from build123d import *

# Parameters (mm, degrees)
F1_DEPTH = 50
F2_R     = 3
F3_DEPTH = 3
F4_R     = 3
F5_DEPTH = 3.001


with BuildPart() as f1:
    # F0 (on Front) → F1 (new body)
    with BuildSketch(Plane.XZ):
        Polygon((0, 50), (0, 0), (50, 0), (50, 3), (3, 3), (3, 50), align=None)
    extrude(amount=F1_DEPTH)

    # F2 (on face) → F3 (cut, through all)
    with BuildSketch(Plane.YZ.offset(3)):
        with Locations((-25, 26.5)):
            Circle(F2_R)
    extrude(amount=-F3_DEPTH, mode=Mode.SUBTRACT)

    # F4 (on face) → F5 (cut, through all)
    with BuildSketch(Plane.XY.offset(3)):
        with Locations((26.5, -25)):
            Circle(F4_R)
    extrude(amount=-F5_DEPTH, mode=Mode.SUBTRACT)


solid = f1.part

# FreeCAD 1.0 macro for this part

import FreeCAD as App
import Part
import Sketcher
from FreeCAD import Vector
Q = App.Units.Quantity

doc = App.newDocument("Part")
body = doc.addObject("PartDesign::Body", "Body")

sketch1 = doc.addObject("Sketcher::SketchObject", "Sketch")
body.addObject(sketch1)
sketch1.AttachmentSupport = (doc.XZ_Plane, [""])
sketch1.MapMode = "FlatFace"
sketch1.addGeometry([
    Part.LineSegment(Vector(0, 50, 0), Vector(0, 0, 0)),
    Part.LineSegment(Vector(0, 0, 0), Vector(50, 0, 0)),
    Part.LineSegment(Vector(50, 0, 0), Vector(50, 3, 0)),
    Part.LineSegment(Vector(50, 3, 0), Vector(3, 3, 0)),
    Part.LineSegment(Vector(3, 3, 0), Vector(3, 50, 0)),
    Part.LineSegment(Vector(3, 50, 0), Vector(0, 50, 0)),
], False)
sketch1.addConstraint([
    Sketcher.Constraint("Coincident", 0, 2, 1, 1),
    Sketcher.Constraint("Coincident", 1, 2, 2, 1),
    Sketcher.Constraint("Coincident", 2, 2, 3, 1),
    Sketcher.Constraint("Coincident", 3, 2, 4, 1),
    Sketcher.Constraint("Coincident", 4, 2, 5, 1),
    Sketcher.Constraint("Coincident", 5, 2, 0, 1),
    Sketcher.Constraint("Vertical", 0),
    Sketcher.Constraint("Horizontal", 1),
    Sketcher.Constraint("Vertical", 2),
    Sketcher.Constraint("Horizontal", 3),
    Sketcher.Constraint("Vertical", 4),
    Sketcher.Constraint("Horizontal", 5),
    Sketcher.Constraint("Coincident", 0, 2, -1, 1),
    Sketcher.Constraint("Equal", 1, 0),
    Sketcher.Constraint("Equal", 5, 2),
    Sketcher.Constraint("DistanceX", 1, 1, 1, 2, Q("50 mm")),
    Sketcher.Constraint("DistanceX", 3, 2, 3, 1, Q("47 mm")),
])
pad1 = doc.addObject("PartDesign::Pad", "Pad")
body.addObject(pad1)
pad1.Profile = sketch1
pad1.Length = 50

sketch2 = doc.addObject("Sketcher::SketchObject", "Sketch001")
body.addObject(sketch2)
sketch2.AttachmentSupport = (doc.YZ_Plane, [""])
sketch2.MapMode = "FlatFace"
sketch2.AttachmentOffset = App.Placement(Vector(0, 0, 3), App.Rotation())
sketch2.addGeometry(Part.Circle(Vector(-25, 26.5, 0), Vector(0, 0, 1), 3), False)
sketch2.addConstraint([
    Sketcher.Constraint("Diameter", 0, Q("6 mm")),
    Sketcher.Constraint("DistanceX", 0, 3, -1, 1, Q("25 mm")),
    Sketcher.Constraint("DistanceY", -1, 1, 0, 3, Q("26.5 mm")),
])
pocket1 = doc.addObject("PartDesign::Pocket", "Pocket")
body.addObject(pocket1)
pocket1.Profile = sketch2
pocket1.Type = "ThroughAll"

sketch3 = doc.addObject("Sketcher::SketchObject", "Sketch002")
body.addObject(sketch3)
sketch3.AttachmentSupport = (doc.XY_Plane, [""])
sketch3.MapMode = "FlatFace"
sketch3.AttachmentOffset = App.Placement(Vector(0, 0, 3), App.Rotation())
sketch3.addGeometry(Part.Circle(Vector(26.5, -25, 0), Vector(0, 0, 1), 3), False)
sketch3.addConstraint([
    Sketcher.Constraint("Diameter", 0, Q("6 mm")),
    Sketcher.Constraint("DistanceY", 0, 3, -1, 1, Q("25 mm")),
    Sketcher.Constraint("DistanceX", -1, 1, 0, 3, Q("26.5 mm")),
])
pocket2 = doc.addObject("PartDesign::Pocket", "Pocket001")
body.addObject(pocket2)
pocket2.Profile = sketch3
pocket2.Type = "ThroughAll"

doc.recompute()
